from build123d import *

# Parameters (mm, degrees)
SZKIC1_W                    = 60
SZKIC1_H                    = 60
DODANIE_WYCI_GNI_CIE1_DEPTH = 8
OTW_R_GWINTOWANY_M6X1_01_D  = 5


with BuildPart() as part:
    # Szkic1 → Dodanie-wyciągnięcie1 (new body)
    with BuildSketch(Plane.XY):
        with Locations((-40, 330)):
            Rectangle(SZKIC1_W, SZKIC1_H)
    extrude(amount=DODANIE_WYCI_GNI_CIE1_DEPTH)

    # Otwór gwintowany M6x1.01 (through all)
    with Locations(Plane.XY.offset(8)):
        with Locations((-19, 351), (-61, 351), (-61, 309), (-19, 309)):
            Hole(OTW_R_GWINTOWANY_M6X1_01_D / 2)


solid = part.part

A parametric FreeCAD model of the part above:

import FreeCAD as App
import Part
import Sketcher
Q = App.Units.Quantity


def add_polygon(sketch, points):
    """Adds a closed chain of lines whose ends are joined by coincident constraints."""
    first, n = sketch.GeometryCount, len(points)
    for a, b in zip(points, points[1:] + points[:1]):
        sketch.addGeometry(Part.LineSegment(App.Vector(*a, 0), App.Vector(*b, 0)), False)
    for i in range(n):
        sketch.addConstraint(Sketcher.Constraint("Coincident", first + i, 2, first + (i + 1) % n, 1))

doc = App.newDocument("Part")
body = doc.addObject("PartDesign::Body", "Body")

# Sketch on XY plane
sketch1 = doc.addObject("Sketcher::SketchObject", "Sketch")
body.addObject(sketch1)
sketch1.AttachmentSupport = (doc.XY_Plane, [""])
sketch1.MapMode = "FlatFace"
add_polygon(sketch1, [(-70, 360), (-70, 300), (-10, 300), (-10, 360)])  # lines 0-3
sketch1.addConstraint([
    Sketcher.Constraint("Vertical", 0),
    Sketcher.Constraint("Horizontal", 1),
    Sketcher.Constraint("Vertical", 2),
    Sketcher.Constraint("Horizontal", 3),
    Sketcher.Constraint("Equal", 3, 0),
    Sketcher.Constraint("DistanceX", 1, 1, 1, 2, Q("60 mm")),
    Sketcher.Constraint("DistanceX", 0, 2, -1, 1, Q("70 mm")),
    Sketcher.Constraint("DistanceY", -1, 1, 0, 2, Q("300 mm")),
])
pad1 = doc.addObject("PartDesign::Pad", "Pad")
body.addObject(pad1)
pad1.Profile = sketch1
pad1.Length = 8

# Sketch on XY plane
sketch2 = doc.addObject("Sketcher::SketchObject", "Sketch001")
body.addObject(sketch2)
sketch2.AttachmentSupport = (doc.XY_Plane, [""])
sketch2.MapMode = "FlatFace"
sketch2.AttachmentOffset = App.Placement(App.Vector(0, 0, 8), App.Rotation())
sketch2.addGeometry([
    Part.Circle(App.Vector(-19, 351, 0), App.Vector(0, 0, 1), 2.5),
    Part.Circle(App.Vector(-61, 351, 0), App.Vector(0, 0, 1), 2.5),
    Part.Circle(App.Vector(-61, 309, 0), App.Vector(0, 0, 1), 2.5),
    Part.Circle(App.Vector(-19, 309, 0), App.Vector(0, 0, 1), 2.5),
], False)
sketch2.addConstraint([
    Sketcher.Constraint("Equal", 0, 1),
    Sketcher.Constraint("Equal", 1, 2),
    Sketcher.Constraint("Equal", 2, 3),
    Sketcher.Constraint("Horizontal", 0, 3, 1, 3),
    Sketcher.Constraint("Horizontal", 2, 3, 3, 3),
    Sketcher.Constraint("Vertical", 1, 3, 2, 3),
    Sketcher.Constraint("Vertical", 0, 3, 3, 3),
    Sketcher.Constraint("Diameter", 0, Q("5 mm")),
    Sketcher.Constraint("DistanceX", 0, 3, -1, 1, Q("19 mm")),
    Sketcher.Constraint("DistanceY", -1, 1, 0, 3, Q("351 mm")),
    Sketcher.Constraint("DistanceX", 1, 3, -1, 1, Q("61 mm")),
    Sketcher.Constraint("DistanceY", -1, 1, 2, 3, Q("309 mm")),
])
doc.recompute()
hole = doc.addObject("PartDesign::Hole", "Hole")
body.addObject(hole)
hole.Profile = sketch2
hole.ThreadType = "None"
hole.Diameter = 5
hole.DepthType = "ThroughAll"

doc.recompute()
